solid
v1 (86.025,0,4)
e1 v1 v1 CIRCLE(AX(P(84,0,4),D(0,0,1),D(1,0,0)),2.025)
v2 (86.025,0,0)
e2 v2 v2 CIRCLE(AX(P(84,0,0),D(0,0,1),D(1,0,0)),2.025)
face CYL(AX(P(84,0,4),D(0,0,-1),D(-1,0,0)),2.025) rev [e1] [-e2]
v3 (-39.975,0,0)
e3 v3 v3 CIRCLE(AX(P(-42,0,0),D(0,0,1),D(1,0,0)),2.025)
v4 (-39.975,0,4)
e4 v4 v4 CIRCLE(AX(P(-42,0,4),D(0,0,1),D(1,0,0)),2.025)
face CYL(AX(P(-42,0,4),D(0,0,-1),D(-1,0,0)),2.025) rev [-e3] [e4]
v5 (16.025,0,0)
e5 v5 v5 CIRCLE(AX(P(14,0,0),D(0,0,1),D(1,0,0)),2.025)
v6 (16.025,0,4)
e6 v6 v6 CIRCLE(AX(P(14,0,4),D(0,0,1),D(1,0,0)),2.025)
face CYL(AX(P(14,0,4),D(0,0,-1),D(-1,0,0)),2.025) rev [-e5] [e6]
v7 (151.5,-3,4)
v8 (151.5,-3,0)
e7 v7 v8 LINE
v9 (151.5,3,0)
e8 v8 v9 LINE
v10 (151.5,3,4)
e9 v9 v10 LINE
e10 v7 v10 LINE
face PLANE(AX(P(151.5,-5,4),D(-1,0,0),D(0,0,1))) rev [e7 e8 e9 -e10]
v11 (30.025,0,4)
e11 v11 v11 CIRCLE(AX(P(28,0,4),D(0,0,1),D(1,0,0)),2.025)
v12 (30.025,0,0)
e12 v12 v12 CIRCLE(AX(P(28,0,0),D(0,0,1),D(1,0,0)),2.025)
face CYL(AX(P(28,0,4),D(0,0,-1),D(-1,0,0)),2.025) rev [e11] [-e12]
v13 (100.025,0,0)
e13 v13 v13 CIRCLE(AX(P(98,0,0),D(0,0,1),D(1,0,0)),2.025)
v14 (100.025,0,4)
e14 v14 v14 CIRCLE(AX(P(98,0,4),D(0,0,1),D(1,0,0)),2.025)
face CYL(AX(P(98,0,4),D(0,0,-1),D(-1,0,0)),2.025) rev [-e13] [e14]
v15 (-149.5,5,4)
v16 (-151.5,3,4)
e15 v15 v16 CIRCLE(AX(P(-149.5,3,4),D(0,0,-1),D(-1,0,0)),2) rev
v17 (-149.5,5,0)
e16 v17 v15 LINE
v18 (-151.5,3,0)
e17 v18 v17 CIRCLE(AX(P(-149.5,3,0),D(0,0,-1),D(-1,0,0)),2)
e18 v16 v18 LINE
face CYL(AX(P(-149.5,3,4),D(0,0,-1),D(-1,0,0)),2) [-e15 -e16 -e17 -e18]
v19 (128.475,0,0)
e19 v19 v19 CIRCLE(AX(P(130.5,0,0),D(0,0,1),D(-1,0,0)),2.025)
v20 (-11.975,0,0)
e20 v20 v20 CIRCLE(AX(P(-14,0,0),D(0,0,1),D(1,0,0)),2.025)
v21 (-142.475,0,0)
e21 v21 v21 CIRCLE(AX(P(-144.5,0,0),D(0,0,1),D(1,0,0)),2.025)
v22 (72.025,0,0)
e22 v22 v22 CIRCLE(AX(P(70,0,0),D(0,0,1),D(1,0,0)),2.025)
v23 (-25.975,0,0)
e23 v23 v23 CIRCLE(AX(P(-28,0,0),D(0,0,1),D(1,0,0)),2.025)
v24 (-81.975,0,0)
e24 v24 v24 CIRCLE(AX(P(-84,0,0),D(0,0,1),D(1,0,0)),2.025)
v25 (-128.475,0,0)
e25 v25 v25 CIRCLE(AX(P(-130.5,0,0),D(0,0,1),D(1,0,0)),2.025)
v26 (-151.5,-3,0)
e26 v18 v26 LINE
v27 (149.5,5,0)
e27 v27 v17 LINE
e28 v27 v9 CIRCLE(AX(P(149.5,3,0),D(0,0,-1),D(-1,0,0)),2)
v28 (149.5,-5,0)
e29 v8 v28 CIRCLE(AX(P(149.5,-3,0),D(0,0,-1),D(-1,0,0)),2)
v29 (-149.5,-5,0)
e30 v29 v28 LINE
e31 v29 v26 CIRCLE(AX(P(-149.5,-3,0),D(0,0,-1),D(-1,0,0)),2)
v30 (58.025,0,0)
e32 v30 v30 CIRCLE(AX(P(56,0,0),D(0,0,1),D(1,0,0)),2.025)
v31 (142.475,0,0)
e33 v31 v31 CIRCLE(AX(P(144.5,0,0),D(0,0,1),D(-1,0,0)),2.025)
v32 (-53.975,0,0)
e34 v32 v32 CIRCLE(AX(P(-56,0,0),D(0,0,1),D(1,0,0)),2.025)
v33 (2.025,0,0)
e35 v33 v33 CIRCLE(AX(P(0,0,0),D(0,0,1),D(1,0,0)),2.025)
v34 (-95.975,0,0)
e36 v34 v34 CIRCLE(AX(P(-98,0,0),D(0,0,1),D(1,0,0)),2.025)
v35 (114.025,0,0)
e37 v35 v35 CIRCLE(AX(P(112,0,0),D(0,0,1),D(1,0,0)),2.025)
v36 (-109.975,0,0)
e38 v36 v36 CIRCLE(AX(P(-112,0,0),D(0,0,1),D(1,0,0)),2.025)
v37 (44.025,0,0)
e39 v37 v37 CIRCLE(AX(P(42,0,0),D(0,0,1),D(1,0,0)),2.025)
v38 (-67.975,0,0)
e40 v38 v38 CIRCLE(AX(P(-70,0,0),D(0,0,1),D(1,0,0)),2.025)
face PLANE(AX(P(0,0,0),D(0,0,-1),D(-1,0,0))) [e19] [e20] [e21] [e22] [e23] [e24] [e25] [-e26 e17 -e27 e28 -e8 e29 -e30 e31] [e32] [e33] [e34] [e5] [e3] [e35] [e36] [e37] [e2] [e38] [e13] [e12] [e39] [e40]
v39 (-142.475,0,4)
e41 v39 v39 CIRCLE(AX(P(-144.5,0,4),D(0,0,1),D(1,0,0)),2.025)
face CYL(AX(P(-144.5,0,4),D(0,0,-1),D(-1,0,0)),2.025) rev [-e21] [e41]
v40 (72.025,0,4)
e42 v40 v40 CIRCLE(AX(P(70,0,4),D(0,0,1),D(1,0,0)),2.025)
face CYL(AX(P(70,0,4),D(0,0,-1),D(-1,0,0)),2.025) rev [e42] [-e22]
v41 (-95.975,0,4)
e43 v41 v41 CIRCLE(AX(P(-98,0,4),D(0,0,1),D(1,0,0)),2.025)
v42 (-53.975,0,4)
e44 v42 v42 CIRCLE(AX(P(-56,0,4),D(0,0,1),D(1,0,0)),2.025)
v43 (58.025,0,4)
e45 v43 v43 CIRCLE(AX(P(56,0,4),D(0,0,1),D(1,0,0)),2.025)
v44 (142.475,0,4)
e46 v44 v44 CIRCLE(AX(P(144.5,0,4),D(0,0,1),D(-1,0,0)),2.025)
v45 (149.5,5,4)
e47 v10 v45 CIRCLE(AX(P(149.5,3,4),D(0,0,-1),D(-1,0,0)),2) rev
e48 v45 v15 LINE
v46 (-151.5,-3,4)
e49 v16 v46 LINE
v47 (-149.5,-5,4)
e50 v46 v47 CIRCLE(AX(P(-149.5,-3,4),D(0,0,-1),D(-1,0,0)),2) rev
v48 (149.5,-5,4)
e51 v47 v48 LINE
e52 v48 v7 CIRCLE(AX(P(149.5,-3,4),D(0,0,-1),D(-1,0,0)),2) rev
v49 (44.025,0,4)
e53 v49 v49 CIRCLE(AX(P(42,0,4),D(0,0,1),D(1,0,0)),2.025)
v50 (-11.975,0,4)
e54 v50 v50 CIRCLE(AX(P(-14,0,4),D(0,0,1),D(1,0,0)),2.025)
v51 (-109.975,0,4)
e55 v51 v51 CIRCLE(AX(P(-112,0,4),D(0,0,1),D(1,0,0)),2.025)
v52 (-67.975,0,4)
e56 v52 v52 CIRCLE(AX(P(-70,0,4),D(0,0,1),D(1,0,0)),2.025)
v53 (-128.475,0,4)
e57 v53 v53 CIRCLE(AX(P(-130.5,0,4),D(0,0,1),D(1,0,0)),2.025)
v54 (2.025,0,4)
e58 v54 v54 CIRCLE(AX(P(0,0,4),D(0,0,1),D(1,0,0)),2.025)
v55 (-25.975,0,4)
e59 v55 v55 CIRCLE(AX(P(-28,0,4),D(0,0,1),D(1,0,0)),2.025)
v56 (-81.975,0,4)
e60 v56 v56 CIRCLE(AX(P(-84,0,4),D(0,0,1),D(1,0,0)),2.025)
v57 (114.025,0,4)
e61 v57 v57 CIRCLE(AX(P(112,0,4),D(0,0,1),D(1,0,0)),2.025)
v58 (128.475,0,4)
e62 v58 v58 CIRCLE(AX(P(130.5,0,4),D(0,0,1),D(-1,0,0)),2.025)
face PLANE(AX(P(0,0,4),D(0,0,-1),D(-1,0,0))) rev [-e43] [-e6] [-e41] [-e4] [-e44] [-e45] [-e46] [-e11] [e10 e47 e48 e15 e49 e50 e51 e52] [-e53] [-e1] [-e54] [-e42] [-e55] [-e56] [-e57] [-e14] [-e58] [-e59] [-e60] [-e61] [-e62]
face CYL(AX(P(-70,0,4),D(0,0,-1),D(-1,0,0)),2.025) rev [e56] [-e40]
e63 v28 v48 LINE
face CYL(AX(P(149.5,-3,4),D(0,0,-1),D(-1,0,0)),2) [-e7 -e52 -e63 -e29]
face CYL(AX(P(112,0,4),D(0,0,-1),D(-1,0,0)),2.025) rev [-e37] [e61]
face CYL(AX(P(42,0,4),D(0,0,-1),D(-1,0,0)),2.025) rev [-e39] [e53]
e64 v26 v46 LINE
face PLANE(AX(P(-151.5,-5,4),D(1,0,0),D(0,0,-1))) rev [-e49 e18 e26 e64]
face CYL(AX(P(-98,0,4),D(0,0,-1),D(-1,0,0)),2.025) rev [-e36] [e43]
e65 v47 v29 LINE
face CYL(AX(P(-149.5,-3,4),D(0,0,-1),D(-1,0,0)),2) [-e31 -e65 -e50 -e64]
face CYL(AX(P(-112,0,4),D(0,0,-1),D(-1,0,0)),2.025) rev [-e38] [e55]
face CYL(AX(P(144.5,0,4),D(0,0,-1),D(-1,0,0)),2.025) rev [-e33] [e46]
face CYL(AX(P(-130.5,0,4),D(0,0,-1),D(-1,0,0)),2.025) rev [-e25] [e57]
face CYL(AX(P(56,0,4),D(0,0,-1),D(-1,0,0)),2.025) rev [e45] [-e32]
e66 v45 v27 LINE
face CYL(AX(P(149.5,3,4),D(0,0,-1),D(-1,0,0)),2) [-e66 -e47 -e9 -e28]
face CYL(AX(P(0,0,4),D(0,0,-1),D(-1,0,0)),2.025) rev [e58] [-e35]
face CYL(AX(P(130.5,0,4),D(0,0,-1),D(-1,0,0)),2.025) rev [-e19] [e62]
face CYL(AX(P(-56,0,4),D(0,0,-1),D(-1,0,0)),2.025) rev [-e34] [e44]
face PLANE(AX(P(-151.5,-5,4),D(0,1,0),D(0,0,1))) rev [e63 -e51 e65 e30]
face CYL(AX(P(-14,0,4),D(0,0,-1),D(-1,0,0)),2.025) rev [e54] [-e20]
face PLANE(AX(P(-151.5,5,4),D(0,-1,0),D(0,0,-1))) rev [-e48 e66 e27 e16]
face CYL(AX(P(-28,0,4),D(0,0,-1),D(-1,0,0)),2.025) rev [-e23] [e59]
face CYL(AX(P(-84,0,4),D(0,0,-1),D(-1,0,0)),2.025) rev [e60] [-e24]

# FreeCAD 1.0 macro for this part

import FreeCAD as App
import Part
import Sketcher
from FreeCAD import Vector


def edges_at(feature, points):
    """Names of the edges that pass closest to the given points."""
    edges = feature.Shape.Edges
    near = lambda p: min(range(len(edges)), key=lambda i: edges[i].distToShape(Part.Vertex(*p))[0])
    return sorted({f"Edge{near(p) + 1}" for p in points})


def add_polygon(sketch, points):
    """Adds a closed chain of lines whose ends are joined by coincident constraints."""
    first, n = sketch.GeometryCount, len(points)
    for a, b in zip(points, points[1:] + points[:1]):
        sketch.addGeometry(Part.LineSegment(App.Vector(*a, 0), App.Vector(*b, 0)), False)
    for i in range(n):
        sketch.addConstraint(Sketcher.Constraint("Coincident", first + i, 2, first + (i + 1) % n, 1))

doc = App.newDocument("Part")
body = doc.addObject("PartDesign::Body", "Body")

sketch1 = body.newObject("Sketcher::SketchObject", "Sketch")
sketch1.AttachmentSupport = (doc.getObject("XY_Plane"), [""])
sketch1.MapMode = "FlatFace"
add_polygon(sketch1, [(-151.5, 5), (-151.5, -5), (151.5, -5), (151.5, 5)])
sketch1.addGeometry(Part.Circle(Vector(-144.5, 0, 0), Vector(0, 0, 1), 2), False)
sketch1.addGeometry(Part.Circle(Vector(-130.5, 0, 0), Vector(0, 0, 1), 2), False)
sketch1.addGeometry(Part.Circle(Vector(-112, 0, 0), Vector(0, 0, 1), 2), False)
sketch1.addGeometry(Part.Circle(Vector(-98, 0, 0), Vector(0, 0, 1), 2), False)
sketch1.addGeometry(Part.Circle(Vector(-84, 0, 0), Vector(0, 0, 1), 2), False)
sketch1.addGeometry(Part.Circle(Vector(-70, 0, 0), Vector(0, 0, 1), 2), False)
sketch1.addGeometry(Part.Circle(Vector(-56, 0, 0), Vector(0, 0, 1), 2), False)
sketch1.addGeometry(Part.Circle(Vector(-42, 0, 0), Vector(0, 0, 1), 2), False)
sketch1.addGeometry(Part.Circle(Vector(-28, 0, 0), Vector(0, 0, 1), 2), False)
sketch1.addGeometry(Part.Circle(Vector(-14, 0, 0), Vector(0, 0, 1), 2), False)
sketch1.addGeometry(Part.Circle(Vector(0, 0, 0), Vector(0, 0, 1), 2), False)
sketch1.addGeometry(Part.Circle(Vector(14, 0, 0), Vector(0, 0, 1), 2), False)
sketch1.addGeometry(Part.Circle(Vector(28, 0, 0), Vector(0, 0, 1), 2), False)
sketch1.addGeometry(Part.Circle(Vector(42, 0, 0), Vector(0, 0, 1), 2), False)
sketch1.addGeometry(Part.Circle(Vector(56, 0, 0), Vector(0, 0, 1), 2), False)
sketch1.addGeometry(Part.Circle(Vector(70, 0, 0), Vector(0, 0, 1), 2), False)
sketch1.addGeometry(Part.Circle(Vector(84, 0, 0), Vector(0, 0, 1), 2), False)
sketch1.addGeometry(Part.Circle(Vector(98, 0, 0), Vector(0, 0, 1), 2), False)
sketch1.addGeometry(Part.Circle(Vector(112, 0, 0), Vector(0, 0, 1), 2), False)
sketch1.addGeometry(Part.Circle(Vector(130.5, 0, 0), Vector(0, 0, 1), 2), False)
sketch1.addGeometry(Part.Circle(Vector(144.5, 0, 0), Vector(0, 0, 1), 2), False)
sketch1.addConstraint([
    Sketcher.Constraint("Vertical", 0),
    Sketcher.Constraint("Horizontal", 1),
    Sketcher.Constraint("Vertical", 2),
    Sketcher.Constraint("Horizontal", 3),
    Sketcher.Constraint("Coincident", 14, 3, -1, 1),
    Sketcher.Constraint("Equal", 4, 5),
    Sketcher.Constraint("Equal", 5, 6),
    Sketcher.Constraint("Equal", 6, 7),
    Sketcher.Constraint("Equal", 7, 8),
    Sketcher.Constraint("Equal", 8, 9),
    Sketcher.Constraint("Equal", 9, 10),
    Sketcher.Constraint("Equal", 10, 11),
    Sketcher.Constraint("Equal", 11, 12),
    Sketcher.Constraint("Equal", 12, 13),
    Sketcher.Constraint("Equal", 13, 14),
    Sketcher.Constraint("Equal", 14, 15),
    Sketcher.Constraint("Equal", 15, 16),
    Sketcher.Constraint("Equal", 16, 17),
    Sketcher.Constraint("Equal", 17, 18),
    Sketcher.Constraint("Equal", 18, 19),
    Sketcher.Constraint("Equal", 19, 20),
    Sketcher.Constraint("Equal", 20, 21),
    Sketcher.Constraint("Equal", 21, 22),
    Sketcher.Constraint("Equal", 22, 23),
    Sketcher.Constraint("Equal", 23, 24),
    Sketcher.Constraint("Symmetric", 13, 3, 15, 3, -1, 1),
    Sketcher.Constraint("Symmetric", 12, 3, 16, 3, -1, 1),
    Sketcher.Constraint("Symmetric", 11, 3, 17, 3, -1, 1),
    Sketcher.Constraint("Symmetric", 10, 3, 18, 3, -1, 1),
    Sketcher.Constraint("Symmetric", 9, 3, 19, 3, -1, 1),
    Sketcher.Constraint("Symmetric", 8, 3, 20, 3, -1, 1),
    Sketcher.Constraint("Symmetric", 7, 3, 21, 3, -1, 1),
    Sketcher.Constraint("Symmetric", 6, 3, 22, 3, -1, 1),
    Sketcher.Constraint("Symmetric", 5, 3, 23, 3, -1, 1),
    Sketcher.Constraint("Symmetric", 4, 3, 24, 3, -1, 1),
    Sketcher.Constraint("Symmetric", 0, 2, 2, 2, -1, 1),
    Sketcher.Constraint("PointOnObject", 4, 3, -1),
    Sketcher.Constraint("PointOnObject", 5, 3, -1),
    Sketcher.Constraint("PointOnObject", 6, 3, -1),
    Sketcher.Constraint("PointOnObject", 7, 3, -1),
    Sketcher.Constraint("PointOnObject", 8, 3, -1),
    Sketcher.Constraint("PointOnObject", 9, 3, -1),
    Sketcher.Constraint("PointOnObject", 10, 3, -1),
    Sketcher.Constraint("PointOnObject", 11, 3, -1),
    Sketcher.Constraint("PointOnObject", 12, 3, -1),
    Sketcher.Constraint("PointOnObject", 13, 3, -1),
    Sketcher.Constraint("Diameter", 4, 4.05),
    Sketcher.Constraint("DistanceX", 1, 1, 1, 2, 303.0),
    Sketcher.Constraint("DistanceY", 0, 2, 0, 1, 10.0),
    Sketcher.Constraint("DistanceX", 6, 3, -1, 1, 112.0),
    Sketcher.Constraint("DistanceX", 7, 3, -1, 1, 98.0),
    Sketcher.Constraint("DistanceX", 8, 3, -1, 1, 84.0),
    Sketcher.Constraint("DistanceX", 9, 3, -1, 1, 70.0),
    Sketcher.Constraint("DistanceX", 10, 3, -1, 1, 56.0),
    Sketcher.Constraint("DistanceX", 11, 3, -1, 1, 42.0),
    Sketcher.Constraint("DistanceX", 12, 3, -1, 1, 28.0),
    Sketcher.Constraint("DistanceX", 13, 3, -1, 1, 14.0),
    Sketcher.Constraint("DistanceX", 4, 3, 5, 3, 14.0),
    Sketcher.Constraint("DistanceX", 0, 2, 4, 3, 7.0),
])
pad1 = body.newObject("PartDesign::Pad", "Pad")
pad1.Profile = sketch1
pad1.Length = 4
doc.recompute()

fillet = body.newObject("PartDesign::Fillet", "Fillet")
fillet.Base = (pad1, edges_at(pad1, [
    (151.5, -5, 2),
    (-151.5, -5, 2),
    (-151.5, 5, 2),
    (151.5, 5, 2),
]))
fillet.Radius = 2

doc.recompute()
